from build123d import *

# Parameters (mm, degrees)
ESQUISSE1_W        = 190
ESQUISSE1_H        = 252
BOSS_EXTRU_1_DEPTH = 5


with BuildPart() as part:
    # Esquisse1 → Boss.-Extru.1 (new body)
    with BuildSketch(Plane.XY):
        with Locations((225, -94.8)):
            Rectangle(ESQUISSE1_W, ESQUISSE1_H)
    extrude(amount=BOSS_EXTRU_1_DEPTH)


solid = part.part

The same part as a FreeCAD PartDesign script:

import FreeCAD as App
import Part
import Sketcher
Q = App.Units.Quantity

doc = App.newDocument("Part")
body = doc.addObject("PartDesign::Body", "Body")

# Sketch on XY plane
sketch1 = body.newObject("Sketcher::SketchObject", "Sketch")
sketch1.AttachmentSupport = (doc.getObject("XY_Plane"), [""])
sketch1.MapMode = "FlatFace"
sketch1.addGeometry([
    Part.LineSegment(App.Vector(130, 31.2, 0), App.Vector(130, -220.8, 0)),
    Part.LineSegment(App.Vector(130, -220.8, 0), App.Vector(320, -220.8, 0)),
    Part.LineSegment(App.Vector(320, -220.8, 0), App.Vector(320, 31.2, 0)),
    Part.LineSegment(App.Vector(320, 31.2, 0), App.Vector(130, 31.2, 0)),
], False)
sketch1.addConstraint([
    Sketcher.Constraint("Coincident", 0, 2, 1, 1),
    Sketcher.Constraint("Coincident", 1, 2, 2, 1),
    Sketcher.Constraint("Coincident", 2, 2, 3, 1),
    Sketcher.Constraint("Coincident", 3, 2, 0, 1),
    Sketcher.Constraint("Vertical", 0),
    Sketcher.Constraint("Horizontal", 1),
    Sketcher.Constraint("Vertical", 2),
    Sketcher.Constraint("Horizontal", 3),
    Sketcher.Constraint("DistanceX", 1, 1, 1, 2, Q("190 mm")),
    Sketcher.Constraint("DistanceY", 0, 2, 0, 1, Q("252 mm")),
    Sketcher.Constraint("DistanceX", -1, 1, 0, 2, Q("130 mm")),
    Sketcher.Constraint("DistanceY", 0, 2, -1, 1, Q("220.8 mm")),
])
pad1 = body.newObject("PartDesign::Pad", "Pad")
pad1.Profile = sketch1
pad1.Length = 5

doc.recompute()
